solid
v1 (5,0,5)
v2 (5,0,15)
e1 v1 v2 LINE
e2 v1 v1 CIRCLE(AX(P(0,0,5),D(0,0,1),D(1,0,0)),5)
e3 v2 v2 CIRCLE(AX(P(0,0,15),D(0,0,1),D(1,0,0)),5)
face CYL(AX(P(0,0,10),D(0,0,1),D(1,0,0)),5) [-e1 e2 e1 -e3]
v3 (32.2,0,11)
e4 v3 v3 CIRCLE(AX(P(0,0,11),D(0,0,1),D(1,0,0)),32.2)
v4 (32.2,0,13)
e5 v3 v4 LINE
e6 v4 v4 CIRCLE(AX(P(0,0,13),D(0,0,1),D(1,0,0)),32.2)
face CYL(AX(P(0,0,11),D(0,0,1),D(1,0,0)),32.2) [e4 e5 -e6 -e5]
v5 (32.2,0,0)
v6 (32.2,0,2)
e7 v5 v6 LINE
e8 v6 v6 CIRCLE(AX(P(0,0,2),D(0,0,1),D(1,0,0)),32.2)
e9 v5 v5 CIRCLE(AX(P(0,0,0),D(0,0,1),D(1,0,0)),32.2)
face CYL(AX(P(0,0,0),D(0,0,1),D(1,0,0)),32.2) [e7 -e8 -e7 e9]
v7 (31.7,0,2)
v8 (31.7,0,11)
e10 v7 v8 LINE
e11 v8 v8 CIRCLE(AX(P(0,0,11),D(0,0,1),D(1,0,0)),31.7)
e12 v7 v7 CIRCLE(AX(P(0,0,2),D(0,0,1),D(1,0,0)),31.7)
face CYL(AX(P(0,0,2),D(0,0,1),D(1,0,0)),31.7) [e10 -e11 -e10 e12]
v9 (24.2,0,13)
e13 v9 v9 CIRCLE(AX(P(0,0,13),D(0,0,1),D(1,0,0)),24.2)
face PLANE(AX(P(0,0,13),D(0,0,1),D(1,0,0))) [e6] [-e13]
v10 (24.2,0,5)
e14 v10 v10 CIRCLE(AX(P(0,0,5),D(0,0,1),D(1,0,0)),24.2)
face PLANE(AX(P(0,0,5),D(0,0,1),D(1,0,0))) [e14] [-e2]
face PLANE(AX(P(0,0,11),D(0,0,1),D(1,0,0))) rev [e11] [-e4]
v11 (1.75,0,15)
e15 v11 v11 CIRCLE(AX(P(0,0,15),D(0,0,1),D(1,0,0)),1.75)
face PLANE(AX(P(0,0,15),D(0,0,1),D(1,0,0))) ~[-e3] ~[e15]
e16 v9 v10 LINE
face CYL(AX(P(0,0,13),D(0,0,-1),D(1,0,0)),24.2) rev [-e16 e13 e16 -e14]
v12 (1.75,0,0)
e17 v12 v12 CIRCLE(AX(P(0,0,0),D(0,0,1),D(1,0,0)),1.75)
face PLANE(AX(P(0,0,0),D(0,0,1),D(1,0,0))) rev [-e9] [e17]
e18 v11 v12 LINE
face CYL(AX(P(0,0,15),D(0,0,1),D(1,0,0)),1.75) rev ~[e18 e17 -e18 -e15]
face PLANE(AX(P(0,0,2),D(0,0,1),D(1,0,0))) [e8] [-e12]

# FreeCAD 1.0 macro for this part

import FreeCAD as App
import Part
import Sketcher
Q = App.Units.Quantity

doc = App.newDocument("Part")
body = doc.addObject("PartDesign::Body", "Body")

sketch1 = body.newObject("Sketcher::SketchObject", "Sketch")
sketch1.AttachmentSupport = (doc.getObject("XZ_Plane"), [""])
sketch1.MapMode = "FlatFace"
sketch1.addGeometry(Part.LineSegment(App.Vector(0, 15, 0), App.Vector(0, 0, 0)), False)
sketch1.addGeometry(Part.LineSegment(App.Vector(0, 0, 0), App.Vector(32.2, 0, 0)), False)
sketch1.addGeometry(Part.LineSegment(App.Vector(32.2, 0, 0), App.Vector(32.2, 2, 0)), False)
sketch1.addGeometry(Part.LineSegment(App.Vector(32.2, 2, 0), App.Vector(31.7, 2, 0)), False)
sketch1.addGeometry(Part.LineSegment(App.Vector(31.7, 2, 0), App.Vector(31.7, 11, 0)), False)
sketch1.addGeometry(Part.LineSegment(App.Vector(31.7, 11, 0), App.Vector(32.2, 11, 0)), False)
sketch1.addGeometry(Part.LineSegment(App.Vector(32.2, 11, 0), App.Vector(32.2, 13, 0)), False)
sketch1.addGeometry(Part.LineSegment(App.Vector(32.2, 13, 0), App.Vector(24.2, 13, 0)), False)
sketch1.addGeometry(Part.LineSegment(App.Vector(24.2, 13, 0), App.Vector(24.2, 5, 0)), False)
sketch1.addGeometry(Part.LineSegment(App.Vector(24.2, 5, 0), App.Vector(5, 5, 0)), False)
sketch1.addGeometry(Part.LineSegment(App.Vector(5, 5, 0), App.Vector(5, 15, 0)), False)
sketch1.addGeometry(Part.LineSegment(App.Vector(5, 15, 0), App.Vector(0, 15, 0)), False)
sketch1.addConstraint(Sketcher.Constraint("Coincident", 0, 2, 1, 1))
sketch1.addConstraint(Sketcher.Constraint("Coincident", 1, 2, 2, 1))
sketch1.addConstraint(Sketcher.Constraint("Coincident", 2, 2, 3, 1))
sketch1.addConstraint(Sketcher.Constraint("Coincident", 3, 2, 4, 1))
sketch1.addConstraint(Sketcher.Constraint("Coincident", 4, 2, 5, 1))
sketch1.addConstraint(Sketcher.Constraint("Coincident", 5, 2, 6, 1))
sketch1.addConstraint(Sketcher.Constraint("Coincident", 6, 2, 7, 1))
sketch1.addConstraint(Sketcher.Constraint("Coincident", 7, 2, 8, 1))
sketch1.addConstraint(Sketcher.Constraint("Coincident", 8, 2, 9, 1))
sketch1.addConstraint(Sketcher.Constraint("Coincident", 9, 2, 10, 1))
sketch1.addConstraint(Sketcher.Constraint("Coincident", 10, 2, 11, 1))
sketch1.addConstraint(Sketcher.Constraint("Coincident", 11, 2, 0, 1))
sketch1.addConstraint(Sketcher.Constraint("Vertical", 0))
sketch1.addConstraint(Sketcher.Constraint("Horizontal", 1))
sketch1.addConstraint(Sketcher.Constraint("Vertical", 2))
sketch1.addConstraint(Sketcher.Constraint("Horizontal", 3))
sketch1.addConstraint(Sketcher.Constraint("Vertical", 4))
sketch1.addConstraint(Sketcher.Constraint("Horizontal", 5))
sketch1.addConstraint(Sketcher.Constraint("Vertical", 6))
sketch1.addConstraint(Sketcher.Constraint("Horizontal", 7))
sketch1.addConstraint(Sketcher.Constraint("Vertical", 8))
sketch1.addConstraint(Sketcher.Constraint("Horizontal", 9))
sketch1.addConstraint(Sketcher.Constraint("Vertical", 10))
sketch1.addConstraint(Sketcher.Constraint("Horizontal", 11))
sketch1.addConstraint(Sketcher.Constraint("Coincident", 0, 2, -1, 1))
sketch1.addConstraint(Sketcher.Constraint("Vertical", 2, 2, 5, 2))
sketch1.addConstraint(Sketcher.Constraint("Equal", 2, 6))
sketch1.addConstraint(Sketcher.Constraint("Equal", 7, 8))
sketch1.addConstraint(Sketcher.Constraint("DistanceX", 7, 2, 7, 1, Q("8 mm")))
sketch1.addConstraint(Sketcher.Constraint("DistanceX", 11, 2, 11, 1, Q("5 mm")))
sketch1.addConstraint(Sketcher.Constraint("DistanceY", 0, 2, 0, 1, Q("15 mm")))
sketch1.addConstraint(Sketcher.Constraint("DistanceY", 2, 1, 2, 2, Q("2 mm")))
sketch1.addConstraint(Sketcher.Constraint("DistanceY", 4, 1, 4, 2, Q("9 mm")))
sketch1.addConstraint(Sketcher.Constraint("DistanceX", 1, 1, 1, 2, Q("32.2 mm")))
sketch1.addConstraint(Sketcher.Constraint("DistanceX", 3, 2, 3, 1, Q("0.5 mm")))
revolution = body.newObject("PartDesign::Revolution", "Revolution")
revolution.Profile = sketch1
revolution.ReferenceAxis = (sketch1, ["V_Axis"])
revolution.Angle = 360

sketch2 = body.newObject("Sketcher::SketchObject", "Sketch001")
sketch2.AttachmentSupport = (doc.getObject("XY_Plane"), [""])
sketch2.MapMode = "FlatFace"
sketch2.AttachmentOffset = App.Placement(App.Vector(0, 0, 15), App.Rotation())
sketch2.addGeometry(Part.Circle(App.Vector(0, 0, 0), App.Vector(0, 0, 1), 1.8), False)
sketch2.addConstraint(Sketcher.Constraint("Coincident", 0, 3, -1, 1))
sketch2.addConstraint(Sketcher.Constraint("Diameter", 0, Q("3.5 mm")))
pocket1 = body.newObject("PartDesign::Pocket", "Pocket")
pocket1.Profile = sketch2
pocket1.Length = 40

doc.recompute()
